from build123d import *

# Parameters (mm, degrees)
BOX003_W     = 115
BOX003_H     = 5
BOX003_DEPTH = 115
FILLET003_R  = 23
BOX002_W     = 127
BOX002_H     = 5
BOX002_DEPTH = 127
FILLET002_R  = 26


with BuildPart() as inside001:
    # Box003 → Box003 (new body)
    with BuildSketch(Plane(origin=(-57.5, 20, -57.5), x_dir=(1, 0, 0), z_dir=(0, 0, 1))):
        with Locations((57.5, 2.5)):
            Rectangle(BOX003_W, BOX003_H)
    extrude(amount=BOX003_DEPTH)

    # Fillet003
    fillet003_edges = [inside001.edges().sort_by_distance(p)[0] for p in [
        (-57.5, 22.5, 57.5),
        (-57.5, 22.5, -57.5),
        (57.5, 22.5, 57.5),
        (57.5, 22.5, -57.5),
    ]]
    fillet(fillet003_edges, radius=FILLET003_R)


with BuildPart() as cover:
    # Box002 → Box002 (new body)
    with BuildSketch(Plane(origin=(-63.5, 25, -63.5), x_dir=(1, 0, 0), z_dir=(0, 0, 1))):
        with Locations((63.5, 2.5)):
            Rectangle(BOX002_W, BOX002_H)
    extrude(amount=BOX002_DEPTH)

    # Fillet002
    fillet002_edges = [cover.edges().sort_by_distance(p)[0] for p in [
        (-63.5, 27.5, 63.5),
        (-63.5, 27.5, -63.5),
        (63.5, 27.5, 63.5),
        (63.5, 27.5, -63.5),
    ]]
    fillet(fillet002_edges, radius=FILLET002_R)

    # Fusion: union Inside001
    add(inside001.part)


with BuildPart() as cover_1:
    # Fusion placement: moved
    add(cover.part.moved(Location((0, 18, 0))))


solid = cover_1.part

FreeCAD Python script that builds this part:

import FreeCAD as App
import Part
import Sketcher
from FreeCAD import Vector


def edges_at(feature, points):
    """Names of the edges that pass closest to the given points."""
    edges = feature.Shape.Edges
    near = lambda p: min(range(len(edges)), key=lambda i: edges[i].distToShape(Part.Vertex(*p))[0])
    return sorted({f"Edge{near(p) + 1}" for p in points})

doc = App.newDocument("Part")
params = doc.addObject("Spreadsheet::Sheet", "Params")
for row, (alias, value) in enumerate([
    ("sketch1_width", "115 mm"),
    ("sketch1_height", "5 mm"),
    ("pad1_length", "115 mm"),
    ("fillet_radius", "23 mm"),
    ("sketch2_width", "127 mm"),
    ("sketch2_height", "5 mm"),
    ("pad2_length", "127 mm"),
    ("fillet2_radius", "26 mm"),
], start=1):
    params.set(f"A{row}", alias)
    params.set(f"B{row}", "=" + value)
    params.setAlias(f"B{row}", alias)

body = doc.addObject("PartDesign::Body", "Body")

# Sketch on XY plane
sketch1 = doc.addObject("Sketcher::SketchObject", "Sketch")
body.addObject(sketch1)
sketch1.AttachmentSupport = (doc.XY_Plane, [""])
sketch1.MapMode = "FlatFace"
sketch1.AttachmentOffset = App.Placement(Vector(0, 0, -57.5), App.Rotation())
sketch1.addGeometry([
    Part.LineSegment(Vector(-57.5, 25, 0), Vector(-57.5, 20, 0)),
    Part.LineSegment(Vector(-57.5, 20, 0), Vector(57.5, 20, 0)),
    Part.LineSegment(Vector(57.5, 20, 0), Vector(57.5, 25, 0)),
    Part.LineSegment(Vector(57.5, 25, 0), Vector(-57.5, 25, 0)),
], False)
sketch1.addConstraint([
    Sketcher.Constraint("Coincident", 0, 2, 1, 1),
    Sketcher.Constraint("Coincident", 1, 2, 2, 1),
    Sketcher.Constraint("Coincident", 2, 2, 3, 1),
    Sketcher.Constraint("Coincident", 3, 2, 0, 1),
    Sketcher.Constraint("Vertical", 0),
    Sketcher.Constraint("Horizontal", 1),
    Sketcher.Constraint("Vertical", 2),
    Sketcher.Constraint("Horizontal", 3),
    Sketcher.Constraint("DistanceX", 1, 1, 1, 2, 115.0),
    Sketcher.Constraint("DistanceY", 0, 2, 0, 1, 5.0),
    Sketcher.Constraint("DistanceY", -1, 1, 0, 2, 20.0),
    Sketcher.Constraint("DistanceX", 0, 2, -1, 1, 57.5),
])
sketch1.setExpression("Constraints[8]", "Params.sketch1_width")
sketch1.setExpression("Constraints[9]", "Params.sketch1_height")
pad1 = doc.addObject("PartDesign::Pad", "Pad")
body.addObject(pad1)
pad1.Profile = sketch1
pad1.setExpression("Length", "Params.pad1_length")
doc.recompute()

fillet = doc.addObject("PartDesign::Fillet", "Fillet")
body.addObject(fillet)
fillet.Base = (pad1, edges_at(pad1, [
    (-57.5, 22.5, 57.5),
    (-57.5, 22.5, -57.5),
    (57.5, 22.5, 57.5),
    (57.5, 22.5, -57.5),
]))
fillet.setExpression("Radius", "Params.fillet_radius")
body2 = doc.addObject("PartDesign::Body", "Body001")

# Sketch on XY plane
sketch2 = doc.addObject("Sketcher::SketchObject", "Sketch001")
body2.addObject(sketch2)
sketch2.AttachmentSupport = (doc.getObject("XY_Plane001"), [""])
sketch2.MapMode = "FlatFace"
sketch2.AttachmentOffset = App.Placement(Vector(0, 0, -63.5), App.Rotation())
sketch2.addGeometry([
    Part.LineSegment(Vector(-63.5, 30, 0), Vector(-63.5, 25, 0)),
    Part.LineSegment(Vector(-63.5, 25, 0), Vector(63.5, 25, 0)),
    Part.LineSegment(Vector(63.5, 25, 0), Vector(63.5, 30, 0)),
    Part.LineSegment(Vector(63.5, 30, 0), Vector(-63.5, 30, 0)),
], False)
sketch2.addConstraint([
    Sketcher.Constraint("Coincident", 0, 2, 1, 1),
    Sketcher.Constraint("Coincident", 1, 2, 2, 1),
    Sketcher.Constraint("Coincident", 2, 2, 3, 1),
    Sketcher.Constraint("Coincident", 3, 2, 0, 1),
    Sketcher.Constraint("Vertical", 0),
    Sketcher.Constraint("Horizontal", 1),
    Sketcher.Constraint("Vertical", 2),
    Sketcher.Constraint("Horizontal", 3),
    Sketcher.Constraint("DistanceX", 1, 1, 1, 2, 127.0),
    Sketcher.Constraint("DistanceY", 0, 2, 0, 1, 5.0),
    Sketcher.Constraint("DistanceY", -1, 1, 0, 2, 25.0),
    Sketcher.Constraint("DistanceX", 0, 2, -1, 1, 63.5),
])
sketch2.setExpression("Constraints[8]", "Params.sketch2_width")
sketch2.setExpression("Constraints[9]", "Params.sketch2_height")
pad2 = doc.addObject("PartDesign::Pad", "Pad001")
body2.addObject(pad2)
pad2.Profile = sketch2
pad2.setExpression("Length", "Params.pad2_length")
doc.recompute()

fillet2 = doc.addObject("PartDesign::Fillet", "Fillet001")
body2.addObject(fillet2)
fillet2.Base = (pad2, edges_at(pad2, [
    (-63.5, 27.5, 63.5),
    (-63.5, 27.5, -63.5),
    (63.5, 27.5, 63.5),
    (63.5, 27.5, -63.5),
]))
fillet2.setExpression("Radius", "Params.fillet2_radius")
doc.recompute()

boolean = doc.addObject("PartDesign::Boolean", "Boolean")
body2.addObject(boolean)
boolean.Type = "Fuse"
boolean.addObjects([body])
body3 = doc.addObject("PartDesign::Body", "Body002")
doc.recompute()

body2.Placement = App.Placement(Vector(0, 18, 0), App.Rotation(Vector(0, 0, 1), 0))
boolean2 = doc.addObject("PartDesign::Boolean", "Boolean001")
body3.addObject(boolean2)
boolean2.Type = "Fuse"
boolean2.addObjects([body2])

doc.recompute()
